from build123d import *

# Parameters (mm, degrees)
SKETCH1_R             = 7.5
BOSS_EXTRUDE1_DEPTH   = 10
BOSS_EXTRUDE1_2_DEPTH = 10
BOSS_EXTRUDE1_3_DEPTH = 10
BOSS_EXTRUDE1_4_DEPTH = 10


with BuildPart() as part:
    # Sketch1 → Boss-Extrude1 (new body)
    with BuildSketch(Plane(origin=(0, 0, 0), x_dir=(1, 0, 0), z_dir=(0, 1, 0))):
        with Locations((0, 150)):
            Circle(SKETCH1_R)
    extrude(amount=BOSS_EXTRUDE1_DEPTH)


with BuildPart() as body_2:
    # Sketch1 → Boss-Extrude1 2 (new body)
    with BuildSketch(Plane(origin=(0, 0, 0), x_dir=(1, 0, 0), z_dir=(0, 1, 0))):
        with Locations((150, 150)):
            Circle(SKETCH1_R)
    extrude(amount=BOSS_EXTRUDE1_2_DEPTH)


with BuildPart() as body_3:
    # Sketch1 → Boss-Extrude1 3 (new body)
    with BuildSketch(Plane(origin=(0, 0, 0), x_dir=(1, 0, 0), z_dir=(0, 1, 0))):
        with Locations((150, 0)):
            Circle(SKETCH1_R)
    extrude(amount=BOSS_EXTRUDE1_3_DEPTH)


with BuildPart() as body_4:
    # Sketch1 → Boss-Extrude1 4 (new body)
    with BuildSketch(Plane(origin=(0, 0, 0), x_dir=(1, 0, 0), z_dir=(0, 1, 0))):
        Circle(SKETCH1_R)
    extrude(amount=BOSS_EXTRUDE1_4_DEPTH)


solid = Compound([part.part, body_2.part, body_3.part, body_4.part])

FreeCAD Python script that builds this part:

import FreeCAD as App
import Part
import Sketcher

doc = App.newDocument("Part")
body = doc.addObject("PartDesign::Body", "Body")

# Sketch on XZ plane
sketch1 = body.newObject("Sketcher::SketchObject", "Sketch")
sketch1.AttachmentSupport = (doc.getObject("XZ_Plane"), [""])
sketch1.MapMode = "FlatFace"
sketch1.addGeometry(Part.Circle(App.Vector(0, -150, 0), App.Vector(0, 0, 1), 8), False)
sketch1.addConstraint(Sketcher.Constraint("PointOnObject", 0, 3, -2))
sketch1.addConstraint(Sketcher.Constraint("Diameter", 0, 15.0))
sketch1.addConstraint(Sketcher.Constraint("DistanceY", 0, 3, -1, 1, 150.0))
pad1 = body.newObject("PartDesign::Pad", "Pad")
pad1.Profile = sketch1
pad1.Length = 10
pad1.Reversed = True
body2 = doc.addObject("PartDesign::Body", "Body001")

# Sketch on XZ plane
sketch2 = body2.newObject("Sketcher::SketchObject", "Sketch001")
sketch2.AttachmentSupport = (doc.getObject("XZ_Plane001"), [""])
sketch2.MapMode = "FlatFace"
sketch2.addGeometry(Part.Circle(App.Vector(150, -150, 0), App.Vector(0, 0, 1), 8), False)
sketch2.addConstraint(Sketcher.Constraint("Diameter", 0, 15.0))
sketch2.addConstraint(Sketcher.Constraint("DistanceX", -1, 1, 0, 3, 150.0))
sketch2.addConstraint(Sketcher.Constraint("DistanceY", 0, 3, -1, 1, 150.0))
pad2 = body2.newObject("PartDesign::Pad", "Pad001")
pad2.Profile = sketch2
pad2.Length = 10
pad2.Reversed = True
body3 = doc.addObject("PartDesign::Body", "Body002")

# Sketch on XZ plane
sketch3 = body3.newObject("Sketcher::SketchObject", "Sketch002")
sketch3.AttachmentSupport = (doc.getObject("XZ_Plane002"), [""])
sketch3.MapMode = "FlatFace"
sketch3.addGeometry(Part.Circle(App.Vector(150, 0, 0), App.Vector(0, 0, 1), 8), False)
sketch3.addConstraint(Sketcher.Constraint("PointOnObject", 0, 3, -1))
sketch3.addConstraint(Sketcher.Constraint("Diameter", 0, 15.0))
sketch3.addConstraint(Sketcher.Constraint("DistanceX", -1, 1, 0, 3, 150.0))
pad3 = body3.newObject("PartDesign::Pad", "Pad002")
pad3.Profile = sketch3
pad3.Length = 10
pad3.Reversed = True
body4 = doc.addObject("PartDesign::Body", "Body003")

# Sketch on XZ plane
sketch4 = body4.newObject("Sketcher::SketchObject", "Sketch003")
sketch4.AttachmentSupport = (doc.getObject("XZ_Plane003"), [""])
sketch4.MapMode = "FlatFace"
sketch4.addGeometry(Part.Circle(App.Vector(0, 0, 0), App.Vector(0, 0, 1), 8), False)
sketch4.addConstraint(Sketcher.Constraint("Coincident", 0, 3, -1, 1))
sketch4.addConstraint(Sketcher.Constraint("Diameter", 0, 15.0))
pad4 = body4.newObject("PartDesign::Pad", "Pad003")
pad4.Profile = sketch4
pad4.Length = 10
pad4.Reversed = True

doc.recompute()
